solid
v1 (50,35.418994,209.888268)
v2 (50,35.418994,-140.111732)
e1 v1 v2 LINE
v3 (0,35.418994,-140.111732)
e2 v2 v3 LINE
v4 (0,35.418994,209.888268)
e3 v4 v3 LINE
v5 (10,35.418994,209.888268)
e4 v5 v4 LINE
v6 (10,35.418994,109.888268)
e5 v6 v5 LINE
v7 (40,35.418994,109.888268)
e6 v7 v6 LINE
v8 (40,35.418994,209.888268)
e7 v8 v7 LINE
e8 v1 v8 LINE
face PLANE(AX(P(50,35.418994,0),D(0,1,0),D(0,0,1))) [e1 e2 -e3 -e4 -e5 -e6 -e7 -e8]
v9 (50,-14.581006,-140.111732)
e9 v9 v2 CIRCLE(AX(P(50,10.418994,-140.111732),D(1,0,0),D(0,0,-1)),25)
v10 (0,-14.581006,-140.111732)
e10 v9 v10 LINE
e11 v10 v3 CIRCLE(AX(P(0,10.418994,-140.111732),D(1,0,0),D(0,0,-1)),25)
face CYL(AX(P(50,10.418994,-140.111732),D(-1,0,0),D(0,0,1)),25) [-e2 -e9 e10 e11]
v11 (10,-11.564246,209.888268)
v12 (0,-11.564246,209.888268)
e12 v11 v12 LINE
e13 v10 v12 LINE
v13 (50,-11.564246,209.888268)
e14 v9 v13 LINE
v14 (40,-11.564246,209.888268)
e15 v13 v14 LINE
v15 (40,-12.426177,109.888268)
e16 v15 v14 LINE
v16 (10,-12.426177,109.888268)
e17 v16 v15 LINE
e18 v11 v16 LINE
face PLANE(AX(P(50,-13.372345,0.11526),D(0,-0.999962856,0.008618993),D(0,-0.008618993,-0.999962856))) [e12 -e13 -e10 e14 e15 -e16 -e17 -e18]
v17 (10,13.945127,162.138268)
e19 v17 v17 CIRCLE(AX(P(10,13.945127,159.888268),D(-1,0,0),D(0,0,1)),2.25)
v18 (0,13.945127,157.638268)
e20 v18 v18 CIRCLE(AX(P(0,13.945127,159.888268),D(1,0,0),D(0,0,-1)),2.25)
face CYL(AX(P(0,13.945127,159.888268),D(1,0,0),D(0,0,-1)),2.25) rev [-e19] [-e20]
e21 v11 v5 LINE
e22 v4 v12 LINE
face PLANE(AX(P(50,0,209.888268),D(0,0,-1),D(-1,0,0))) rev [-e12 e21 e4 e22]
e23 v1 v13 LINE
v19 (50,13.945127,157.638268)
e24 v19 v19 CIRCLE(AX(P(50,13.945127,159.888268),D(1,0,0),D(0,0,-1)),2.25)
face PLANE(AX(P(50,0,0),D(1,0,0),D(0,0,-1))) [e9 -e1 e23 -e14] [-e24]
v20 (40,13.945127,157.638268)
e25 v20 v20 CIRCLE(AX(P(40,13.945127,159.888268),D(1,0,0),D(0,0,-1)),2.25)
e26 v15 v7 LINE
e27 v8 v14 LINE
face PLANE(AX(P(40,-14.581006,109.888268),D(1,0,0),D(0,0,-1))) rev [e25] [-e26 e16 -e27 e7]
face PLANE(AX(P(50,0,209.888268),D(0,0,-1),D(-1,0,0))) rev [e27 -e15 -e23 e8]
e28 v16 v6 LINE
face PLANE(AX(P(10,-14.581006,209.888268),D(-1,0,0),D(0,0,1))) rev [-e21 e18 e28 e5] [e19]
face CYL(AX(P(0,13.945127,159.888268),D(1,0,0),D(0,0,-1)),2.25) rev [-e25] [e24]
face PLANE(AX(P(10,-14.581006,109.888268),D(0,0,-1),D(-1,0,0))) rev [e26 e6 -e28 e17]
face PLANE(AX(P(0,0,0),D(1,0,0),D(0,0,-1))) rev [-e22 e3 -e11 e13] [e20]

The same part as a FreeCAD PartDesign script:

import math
import FreeCAD as App
import Part
import Sketcher

V = App.Vector


def add_polygon(sketch, points):
    """Adds a closed chain of lines whose ends are joined by coincident constraints."""
    first, n = sketch.GeometryCount, len(points)
    for a, b in zip(points, points[1:] + points[:1]):
        sketch.addGeometry(Part.LineSegment(App.Vector(*a, 0), App.Vector(*b, 0)), False)
    for i in range(n):
        sketch.addConstraint(Sketcher.Constraint("Coincident", first + i, 2, first + (i + 1) % n, 1))

doc = App.newDocument("Part")
body = doc.addObject("PartDesign::Body", "Body")

# Sketch on YZ plane
sketch1 = doc.addObject("Sketcher::SketchObject", "Sketch")
body.addObject(sketch1)
sketch1.AttachmentSupport = (doc.YZ_Plane, [""])
sketch1.MapMode = "FlatFace"
sketch1.addGeometry([
    Part.LineSegment(V(35.42, -140.11, 0), V(35.42, 209.89, 0)),  # 0
    Part.LineSegment(V(35.42, 209.89, 0), V(-11.56, 209.89, 0)),  # 1
    Part.LineSegment(V(-11.56, 209.89, 0), V(-14.58, -139.68, 0)),  # 2
    Part.LineSegment(V(-14.58, -139.68, 0), V(-14.58, -140.11, 0)),  # 3
    Part.ArcOfCircle(Part.Circle(V(10.42, -140.11, 0), V(0, 0, 1), 25), math.radians(-180), math.radians(-90)),  # 4
    Part.ArcOfCircle(Part.Circle(V(10.42, -140.11, 0), V(0, 0, 1), 25), math.radians(-90), math.radians(0)),  # 5
], False)
sketch1.addConstraint([
    Sketcher.Constraint("Coincident", 0, 2, 1, 1),
    Sketcher.Constraint("Coincident", 1, 2, 2, 1),
    Sketcher.Constraint("Coincident", 2, 2, 3, 1),
    Sketcher.Constraint("Coincident", 3, 2, 4, 1),
    Sketcher.Constraint("Tangent", 4, 2, 5, 1),
    Sketcher.Constraint("Tangent", 5, 2, 0, 1),
    Sketcher.Constraint("Vertical", 0),
    Sketcher.Constraint("Horizontal", 1),
    Sketcher.Constraint("Equal", 4, 5),
    Sketcher.Constraint("Parallel", 2, 3),
    Sketcher.Constraint("Horizontal", 5, 3, 3, 2),
    Sketcher.Constraint("Vertical", 5, 3, 4, 2),
    Sketcher.Constraint("Radius", 4, 25.0),
    Sketcher.Constraint("DistanceY", 0, 1, 0, 2, 350.0),
    Sketcher.Constraint("DistanceX", 1, 2, 1, 1, 46.98324),
    Sketcher.Constraint("DistanceY", 2, 2, -1, 1, 139.680798),
    Sketcher.Constraint("Distance", 2, 349.582051),
    Sketcher.Constraint("DistanceX", 2, 2, -1, 1, 14.577291),
])
pad1 = doc.addObject("PartDesign::Pad", "Pad")
body.addObject(pad1)
pad1.Profile = sketch1
pad1.Length = 50

# Sketch on XZ plane
sketch2 = doc.addObject("Sketcher::SketchObject", "Sketch001")
body.addObject(sketch2)
sketch2.AttachmentSupport = (doc.XZ_Plane, [""])
sketch2.MapMode = "FlatFace"
sketch2.AttachmentOffset = App.Placement(V(0, 0, -35.418994), App.Rotation())
add_polygon(sketch2, [(10, 110), (10, 210), (40, 210), (40, 110)])  # lines 0-3
sketch2.addConstraint([
    Sketcher.Constraint("Vertical", 0),
    Sketcher.Constraint("Horizontal", 1),
    Sketcher.Constraint("Vertical", 2),
    Sketcher.Constraint("Horizontal", 3),
    Sketcher.Constraint("DistanceX", 1, 1, 1, 2, 30.0),
    Sketcher.Constraint("DistanceY", 0, 1, 0, 2, 100.0),
    Sketcher.Constraint("DistanceX", -1, 1, 0, 2, 10.0),
    Sketcher.Constraint("DistanceY", -1, 1, 0, 2, 209.888268),
])
pocket1 = doc.addObject("PartDesign::Pocket", "Pocket")
body.addObject(pocket1)
pocket1.Profile = sketch2
pocket1.Type = "ThroughAll"
pocket1.Reversed = True

# Sketch on YZ plane
sketch3 = doc.addObject("Sketcher::SketchObject", "Sketch002")
body.addObject(sketch3)
sketch3.AttachmentSupport = (doc.YZ_Plane, [""])
sketch3.MapMode = "FlatFace"
sketch3.AttachmentOffset = App.Placement(V(0, 0, 50), App.Rotation())
sketch3.addGeometry(Part.Circle(V(13.9, 159.9, 0), V(0, 0, 1), 2.2), False)
sketch3.addConstraint([
    Sketcher.Constraint("Diameter", 0, 4.5),
    Sketcher.Constraint("DistanceY", -1, 1, 0, 3, 159.888268),
    Sketcher.Constraint("DistanceX", -1, 1, 0, 3, 13.945127),
])
pocket2 = doc.addObject("PartDesign::Pocket", "Pocket001")
body.addObject(pocket2)
pocket2.Profile = sketch3
pocket2.Type = "ThroughAll"

doc.recompute()
